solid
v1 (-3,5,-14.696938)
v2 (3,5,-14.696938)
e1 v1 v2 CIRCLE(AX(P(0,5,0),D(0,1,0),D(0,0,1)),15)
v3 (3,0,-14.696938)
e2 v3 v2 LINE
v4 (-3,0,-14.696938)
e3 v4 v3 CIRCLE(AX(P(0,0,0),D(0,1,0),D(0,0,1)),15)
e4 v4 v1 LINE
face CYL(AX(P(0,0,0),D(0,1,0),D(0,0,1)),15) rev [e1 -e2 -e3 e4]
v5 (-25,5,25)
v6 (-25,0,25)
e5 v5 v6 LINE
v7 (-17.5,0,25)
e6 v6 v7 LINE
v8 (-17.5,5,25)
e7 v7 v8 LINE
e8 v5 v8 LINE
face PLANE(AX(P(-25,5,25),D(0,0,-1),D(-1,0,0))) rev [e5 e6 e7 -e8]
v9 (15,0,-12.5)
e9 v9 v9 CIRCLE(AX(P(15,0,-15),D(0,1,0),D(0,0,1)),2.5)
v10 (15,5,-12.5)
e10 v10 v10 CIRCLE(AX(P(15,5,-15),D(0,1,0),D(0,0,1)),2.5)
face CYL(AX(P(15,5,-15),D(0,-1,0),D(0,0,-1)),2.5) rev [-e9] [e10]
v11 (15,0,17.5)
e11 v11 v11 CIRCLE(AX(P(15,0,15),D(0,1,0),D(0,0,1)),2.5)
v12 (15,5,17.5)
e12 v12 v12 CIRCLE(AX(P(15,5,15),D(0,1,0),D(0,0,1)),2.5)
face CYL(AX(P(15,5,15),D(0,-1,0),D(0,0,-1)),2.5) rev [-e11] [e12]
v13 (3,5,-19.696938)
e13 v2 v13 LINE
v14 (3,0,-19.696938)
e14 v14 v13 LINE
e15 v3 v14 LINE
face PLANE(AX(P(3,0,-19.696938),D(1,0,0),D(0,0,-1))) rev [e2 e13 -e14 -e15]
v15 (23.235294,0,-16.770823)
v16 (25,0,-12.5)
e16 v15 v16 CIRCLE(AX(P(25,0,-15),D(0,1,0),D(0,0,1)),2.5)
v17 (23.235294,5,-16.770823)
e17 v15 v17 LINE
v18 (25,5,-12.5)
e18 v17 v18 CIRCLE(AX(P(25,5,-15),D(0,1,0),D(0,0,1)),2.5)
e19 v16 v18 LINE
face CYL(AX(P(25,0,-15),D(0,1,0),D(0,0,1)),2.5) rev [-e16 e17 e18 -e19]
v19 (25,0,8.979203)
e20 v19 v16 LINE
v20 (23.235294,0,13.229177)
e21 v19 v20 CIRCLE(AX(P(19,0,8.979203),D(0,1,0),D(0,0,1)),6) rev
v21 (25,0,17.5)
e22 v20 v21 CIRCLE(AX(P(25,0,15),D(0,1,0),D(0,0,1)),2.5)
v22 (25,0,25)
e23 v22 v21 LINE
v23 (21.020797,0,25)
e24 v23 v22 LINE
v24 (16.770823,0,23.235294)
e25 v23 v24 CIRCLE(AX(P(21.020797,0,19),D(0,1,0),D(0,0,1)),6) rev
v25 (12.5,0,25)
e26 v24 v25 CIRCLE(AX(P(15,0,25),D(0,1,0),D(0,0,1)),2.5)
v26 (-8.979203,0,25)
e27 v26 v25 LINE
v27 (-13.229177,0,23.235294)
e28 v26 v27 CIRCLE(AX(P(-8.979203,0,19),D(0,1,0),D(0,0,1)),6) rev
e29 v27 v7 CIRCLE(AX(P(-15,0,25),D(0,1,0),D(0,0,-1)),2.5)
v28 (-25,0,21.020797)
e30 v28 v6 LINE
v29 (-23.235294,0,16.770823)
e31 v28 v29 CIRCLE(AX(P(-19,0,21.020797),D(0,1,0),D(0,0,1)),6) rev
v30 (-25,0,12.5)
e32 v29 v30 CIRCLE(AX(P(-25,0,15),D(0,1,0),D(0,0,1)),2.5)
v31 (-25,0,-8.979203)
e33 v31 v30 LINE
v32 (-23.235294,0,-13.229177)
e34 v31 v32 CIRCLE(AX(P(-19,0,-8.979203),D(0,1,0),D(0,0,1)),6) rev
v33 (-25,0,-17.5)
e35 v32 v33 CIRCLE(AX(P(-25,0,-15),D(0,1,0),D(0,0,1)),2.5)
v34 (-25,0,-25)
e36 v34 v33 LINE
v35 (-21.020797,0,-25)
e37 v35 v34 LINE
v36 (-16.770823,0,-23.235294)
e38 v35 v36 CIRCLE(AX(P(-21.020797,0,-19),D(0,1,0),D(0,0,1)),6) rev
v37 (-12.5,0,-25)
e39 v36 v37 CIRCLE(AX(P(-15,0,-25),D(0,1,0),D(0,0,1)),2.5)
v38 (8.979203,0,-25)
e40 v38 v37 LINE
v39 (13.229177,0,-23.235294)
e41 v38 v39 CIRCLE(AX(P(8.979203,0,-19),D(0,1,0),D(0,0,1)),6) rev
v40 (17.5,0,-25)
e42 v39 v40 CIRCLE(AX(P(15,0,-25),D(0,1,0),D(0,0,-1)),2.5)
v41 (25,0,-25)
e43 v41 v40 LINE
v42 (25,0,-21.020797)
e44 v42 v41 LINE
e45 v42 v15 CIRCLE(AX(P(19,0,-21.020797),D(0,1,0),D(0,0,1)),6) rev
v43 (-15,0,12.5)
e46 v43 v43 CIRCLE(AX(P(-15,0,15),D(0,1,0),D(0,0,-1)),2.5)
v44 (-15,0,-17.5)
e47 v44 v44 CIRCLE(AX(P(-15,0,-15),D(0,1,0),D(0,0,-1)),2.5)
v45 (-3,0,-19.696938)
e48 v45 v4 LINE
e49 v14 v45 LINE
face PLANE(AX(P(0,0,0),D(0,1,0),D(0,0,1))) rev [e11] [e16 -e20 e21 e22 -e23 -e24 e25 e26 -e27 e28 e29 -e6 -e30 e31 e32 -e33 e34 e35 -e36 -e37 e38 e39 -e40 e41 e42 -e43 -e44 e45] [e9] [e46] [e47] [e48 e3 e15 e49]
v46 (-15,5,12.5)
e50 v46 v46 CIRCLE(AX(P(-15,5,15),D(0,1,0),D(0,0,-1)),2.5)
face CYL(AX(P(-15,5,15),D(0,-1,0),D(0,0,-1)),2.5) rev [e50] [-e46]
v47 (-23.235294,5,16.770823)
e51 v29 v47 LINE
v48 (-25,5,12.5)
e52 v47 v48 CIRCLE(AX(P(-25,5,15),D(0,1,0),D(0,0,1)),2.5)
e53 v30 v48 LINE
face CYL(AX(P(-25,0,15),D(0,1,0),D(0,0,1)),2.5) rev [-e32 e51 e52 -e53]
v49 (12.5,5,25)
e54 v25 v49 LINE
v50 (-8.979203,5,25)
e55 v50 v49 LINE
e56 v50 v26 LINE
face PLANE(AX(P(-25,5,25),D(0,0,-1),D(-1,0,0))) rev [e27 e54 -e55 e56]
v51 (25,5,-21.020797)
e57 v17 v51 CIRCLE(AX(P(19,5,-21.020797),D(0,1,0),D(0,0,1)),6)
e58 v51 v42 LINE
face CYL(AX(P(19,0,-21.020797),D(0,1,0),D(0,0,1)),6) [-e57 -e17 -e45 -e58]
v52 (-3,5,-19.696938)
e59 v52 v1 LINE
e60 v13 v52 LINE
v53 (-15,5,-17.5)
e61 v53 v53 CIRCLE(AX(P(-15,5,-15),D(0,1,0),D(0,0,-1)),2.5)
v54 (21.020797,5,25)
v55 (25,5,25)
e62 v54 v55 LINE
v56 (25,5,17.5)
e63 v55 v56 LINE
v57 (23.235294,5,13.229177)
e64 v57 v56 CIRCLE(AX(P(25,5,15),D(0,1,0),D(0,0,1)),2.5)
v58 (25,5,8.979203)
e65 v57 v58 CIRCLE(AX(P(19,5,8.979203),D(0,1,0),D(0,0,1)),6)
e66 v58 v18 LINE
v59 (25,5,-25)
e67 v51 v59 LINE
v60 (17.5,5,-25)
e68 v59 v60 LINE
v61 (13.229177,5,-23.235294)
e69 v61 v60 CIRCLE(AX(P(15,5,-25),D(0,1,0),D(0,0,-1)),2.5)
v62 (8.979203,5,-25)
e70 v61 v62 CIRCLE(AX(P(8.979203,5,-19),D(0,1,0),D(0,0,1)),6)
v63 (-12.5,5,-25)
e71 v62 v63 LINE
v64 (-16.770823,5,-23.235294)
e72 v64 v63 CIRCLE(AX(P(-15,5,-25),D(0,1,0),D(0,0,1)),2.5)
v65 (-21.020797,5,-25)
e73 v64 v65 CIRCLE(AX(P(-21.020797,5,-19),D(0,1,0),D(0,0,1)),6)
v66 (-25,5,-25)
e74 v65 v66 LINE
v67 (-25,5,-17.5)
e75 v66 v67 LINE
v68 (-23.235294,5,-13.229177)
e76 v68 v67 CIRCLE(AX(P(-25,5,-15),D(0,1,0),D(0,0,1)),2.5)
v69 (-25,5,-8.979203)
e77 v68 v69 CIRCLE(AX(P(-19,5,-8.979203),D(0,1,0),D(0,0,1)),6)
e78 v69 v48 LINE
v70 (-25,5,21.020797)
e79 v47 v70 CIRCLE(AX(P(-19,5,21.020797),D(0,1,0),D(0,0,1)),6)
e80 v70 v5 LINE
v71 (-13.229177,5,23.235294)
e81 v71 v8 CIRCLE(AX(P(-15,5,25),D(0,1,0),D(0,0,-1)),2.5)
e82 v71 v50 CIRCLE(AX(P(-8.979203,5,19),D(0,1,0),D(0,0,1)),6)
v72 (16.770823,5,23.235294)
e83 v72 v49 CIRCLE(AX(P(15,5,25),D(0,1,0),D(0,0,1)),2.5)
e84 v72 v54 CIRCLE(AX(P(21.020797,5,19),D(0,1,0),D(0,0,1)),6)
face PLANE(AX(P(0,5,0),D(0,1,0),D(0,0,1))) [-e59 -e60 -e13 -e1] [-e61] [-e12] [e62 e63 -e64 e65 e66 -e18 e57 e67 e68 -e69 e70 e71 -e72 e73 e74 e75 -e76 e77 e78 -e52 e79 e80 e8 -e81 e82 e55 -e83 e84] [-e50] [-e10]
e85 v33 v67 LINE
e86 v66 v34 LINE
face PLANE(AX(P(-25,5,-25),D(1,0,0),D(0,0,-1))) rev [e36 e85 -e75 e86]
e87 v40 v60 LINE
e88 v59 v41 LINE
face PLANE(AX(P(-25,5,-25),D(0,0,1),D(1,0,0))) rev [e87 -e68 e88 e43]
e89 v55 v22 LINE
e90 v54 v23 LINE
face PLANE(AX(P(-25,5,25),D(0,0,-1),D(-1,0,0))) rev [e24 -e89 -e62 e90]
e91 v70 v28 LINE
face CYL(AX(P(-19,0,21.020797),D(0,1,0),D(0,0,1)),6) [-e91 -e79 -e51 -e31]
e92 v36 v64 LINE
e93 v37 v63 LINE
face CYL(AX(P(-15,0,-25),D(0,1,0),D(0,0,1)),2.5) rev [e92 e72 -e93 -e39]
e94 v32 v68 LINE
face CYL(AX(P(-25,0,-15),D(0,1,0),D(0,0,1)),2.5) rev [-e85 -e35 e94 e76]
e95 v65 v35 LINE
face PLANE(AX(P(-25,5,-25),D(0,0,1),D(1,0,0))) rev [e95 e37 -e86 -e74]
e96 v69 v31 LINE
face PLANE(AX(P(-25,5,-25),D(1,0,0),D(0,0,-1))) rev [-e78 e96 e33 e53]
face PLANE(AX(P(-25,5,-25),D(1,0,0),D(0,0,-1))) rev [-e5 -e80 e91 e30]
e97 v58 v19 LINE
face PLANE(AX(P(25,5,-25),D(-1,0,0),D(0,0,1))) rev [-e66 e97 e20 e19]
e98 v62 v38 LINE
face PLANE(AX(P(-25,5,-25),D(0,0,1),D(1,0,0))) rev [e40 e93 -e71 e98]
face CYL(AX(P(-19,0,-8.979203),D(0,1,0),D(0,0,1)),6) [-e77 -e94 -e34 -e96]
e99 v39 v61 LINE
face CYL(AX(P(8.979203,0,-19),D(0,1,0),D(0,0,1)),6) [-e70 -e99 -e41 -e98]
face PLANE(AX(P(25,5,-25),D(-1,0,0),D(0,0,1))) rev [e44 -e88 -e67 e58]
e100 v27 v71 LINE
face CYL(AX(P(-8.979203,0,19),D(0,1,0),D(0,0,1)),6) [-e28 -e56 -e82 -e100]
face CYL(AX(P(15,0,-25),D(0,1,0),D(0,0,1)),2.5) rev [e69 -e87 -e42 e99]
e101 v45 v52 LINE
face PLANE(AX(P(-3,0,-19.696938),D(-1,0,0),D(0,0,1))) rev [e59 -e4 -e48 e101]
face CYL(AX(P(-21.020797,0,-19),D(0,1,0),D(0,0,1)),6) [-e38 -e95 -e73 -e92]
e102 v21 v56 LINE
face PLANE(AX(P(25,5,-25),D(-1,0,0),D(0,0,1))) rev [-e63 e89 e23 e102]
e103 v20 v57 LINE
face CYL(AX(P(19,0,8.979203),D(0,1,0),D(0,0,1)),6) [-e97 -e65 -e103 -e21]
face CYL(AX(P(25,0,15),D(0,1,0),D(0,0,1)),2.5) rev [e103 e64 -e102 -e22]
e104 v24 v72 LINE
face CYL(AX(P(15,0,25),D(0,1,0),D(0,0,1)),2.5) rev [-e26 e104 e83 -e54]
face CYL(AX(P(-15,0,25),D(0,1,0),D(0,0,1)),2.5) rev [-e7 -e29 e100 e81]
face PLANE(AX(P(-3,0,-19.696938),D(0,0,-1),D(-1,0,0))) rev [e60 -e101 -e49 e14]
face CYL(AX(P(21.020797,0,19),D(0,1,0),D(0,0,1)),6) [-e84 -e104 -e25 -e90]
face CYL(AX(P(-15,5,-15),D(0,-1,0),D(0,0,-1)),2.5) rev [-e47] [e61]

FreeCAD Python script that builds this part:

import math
import FreeCAD as App
import Part
import Sketcher


def edges_at(feature, points):
    """Names of the edges that pass closest to the given points."""
    edges = feature.Shape.Edges
    near = lambda p: min(range(len(edges)), key=lambda i: edges[i].distToShape(Part.Vertex(*p))[0])
    return sorted({f"Edge{near(p) + 1}" for p in points})


def add_polygon(sketch, points):
    """Adds a closed chain of lines whose ends are joined by coincident constraints."""
    first, n = sketch.GeometryCount, len(points)
    for a, b in zip(points, points[1:] + points[:1]):
        sketch.addGeometry(Part.LineSegment(App.Vector(*a, 0), App.Vector(*b, 0)), False)
    for i in range(n):
        sketch.addConstraint(Sketcher.Constraint("Coincident", first + i, 2, first + (i + 1) % n, 1))

doc = App.newDocument("Part")
body = doc.addObject("PartDesign::Body", "Body")

# Sketch on XZ plane
sketch1 = body.newObject("Sketcher::SketchObject", "Sketch")
sketch1.AttachmentSupport = (doc.getObject("XZ_Plane"), [""])
sketch1.MapMode = "FlatFace"
add_polygon(sketch1, [(-25, -25), (-25, 25), (25, 25), (25, -25)])  # lines 0-3
sketch1.addGeometry(Part.Circle(App.Vector(-15, 15, 0), App.Vector(0, 0, 1), 2.5), False)  # 4
sketch1.addGeometry(Part.Circle(App.Vector(15, 15, 0), App.Vector(0, 0, 1), 2.5), False)  # 5
sketch1.addGeometry(Part.Circle(App.Vector(-15, -15, 0), App.Vector(0, 0, 1), 2.5), False)  # 6
sketch1.addGeometry(Part.Circle(App.Vector(15, -15, 0), App.Vector(0, 0, 1), 2.5), False)  # 7
sketch1.addConstraint([
    Sketcher.Constraint("Vertical", 0),
    Sketcher.Constraint("Horizontal", 1),
    Sketcher.Constraint("Vertical", 2),
    Sketcher.Constraint("Horizontal", 3),
    Sketcher.Constraint("Equal", 4, 5),
    Sketcher.Constraint("Equal", 5, 6),
    Sketcher.Constraint("Equal", 6, 7),
    Sketcher.Constraint("Symmetric", 5, 3, 6, 3, -1, 1),
    Sketcher.Constraint("Symmetric", 4, 3, 7, 3, -1, 1),
    Sketcher.Constraint("Symmetric", 0, 2, 2, 2, -1, 1),
    Sketcher.Constraint("Symmetric", 4, 3, 5, 3, -2),
    Sketcher.Constraint("Equal", 3, 0),
    Sketcher.Constraint("Diameter", 4, 5.0),
    Sketcher.Constraint("DistanceX", 1, 1, 1, 2, 50.0),
    Sketcher.Constraint("DistanceX", 4, 3, -1, 1, 15.0),
    Sketcher.Constraint("DistanceY", -1, 1, 4, 3, 15.0),
])
pad1 = body.newObject("PartDesign::Pad", "Pad")
pad1.Profile = sketch1
pad1.Length = 5
pad1.Reversed = True

# Sketch on XZ plane
sketch2 = body.newObject("Sketcher::SketchObject", "Sketch001")
sketch2.AttachmentSupport = (doc.getObject("XZ_Plane"), [""])
sketch2.MapMode = "FlatFace"
sketch2.AttachmentOffset = App.Placement(App.Vector(0, 0, -5), App.Rotation())
sketch2.addGeometry([
    Part.Circle(App.Vector(25, -15, 0), App.Vector(0, 0, 1), 2.5),  # 0
    Part.Circle(App.Vector(25, 15, 0), App.Vector(0, 0, 1), 2.5),  # 1
    Part.Circle(App.Vector(-25, -15, 0), App.Vector(0, 0, 1), 2.5),  # 2
    Part.Circle(App.Vector(-25, 15, 0), App.Vector(0, 0, 1), 2.5),  # 3
    Part.Circle(App.Vector(-15, -25, 0), App.Vector(0, 0, 1), 2.5),  # 4
    Part.Circle(App.Vector(15, -25, 0), App.Vector(0, 0, 1), 2.5),  # 5
    Part.Circle(App.Vector(15, 25, 0), App.Vector(0, 0, 1), 2.5),  # 6
    Part.Circle(App.Vector(-15, 25, 0), App.Vector(0, 0, 1), 2.5),  # 7
], False)
sketch2.addConstraint([
    Sketcher.Constraint("Equal", 0, 1),
    Sketcher.Constraint("Equal", 1, 2),
    Sketcher.Constraint("Equal", 2, 3),
    Sketcher.Constraint("Equal", 3, 4),
    Sketcher.Constraint("Equal", 4, 5),
    Sketcher.Constraint("Equal", 5, 6),
    Sketcher.Constraint("Equal", 6, 7),
    Sketcher.Constraint("Symmetric", 1, 3, 2, 3, -1, 1),
    Sketcher.Constraint("Symmetric", 0, 3, 3, 3, -1, 1),
    Sketcher.Constraint("Symmetric", 4, 3, 6, 3, -1, 1),
    Sketcher.Constraint("Symmetric", 5, 3, 7, 3, -1, 1),
    Sketcher.Constraint("Symmetric", 0, 3, 2, 3, -2),
    Sketcher.Constraint("Symmetric", 4, 3, 5, 3, -2),
    Sketcher.Constraint("Diameter", 0, 5.0),
    Sketcher.Constraint("DistanceX", -1, 1, 0, 3, 25.0),
    Sketcher.Constraint("DistanceY", 0, 3, -1, 1, 15.0),
    Sketcher.Constraint("DistanceX", 4, 3, -1, 1, 15.0),
    Sketcher.Constraint("DistanceY", 4, 3, -1, 1, 25.0),
])
pocket1 = body.newObject("PartDesign::Pocket", "Pocket")
pocket1.Profile = sketch2
pocket1.Length = 5
pocket1.Reversed = True

# Sketch on XZ plane
sketch3 = body.newObject("Sketcher::SketchObject", "Sketch002")
sketch3.AttachmentSupport = (doc.getObject("XZ_Plane"), [""])
sketch3.MapMode = "FlatFace"
sketch3.AttachmentOffset = App.Placement(App.Vector(0, 0, -5), App.Rotation())
sketch3.addGeometry([
    Part.LineSegment(App.Vector(3, -19.696938, 0), App.Vector(-3, -19.696938, 0)),
    Part.LineSegment(App.Vector(-3, -19.696938, 0), App.Vector(-3, -14.696938, 0)),
    Part.ArcOfCircle(Part.Circle(App.Vector(0, 0, 0), App.Vector(0, 0, 1), 15), math.radians(-78.463041), math.radians(258.463041)),
    Part.LineSegment(App.Vector(3, -14.696938, 0), App.Vector(3, -19.696938, 0)),
], False)
sketch3.addConstraint([
    Sketcher.Constraint("Coincident", 0, 2, 1, 1),
    Sketcher.Constraint("Coincident", 1, 2, 2, 2),
    Sketcher.Constraint("Coincident", 2, 1, 3, 1),
    Sketcher.Constraint("Coincident", 3, 2, 0, 1),
    Sketcher.Constraint("Horizontal", 0),
    Sketcher.Constraint("Vertical", 1),
    Sketcher.Constraint("Vertical", 3),
    Sketcher.Constraint("Coincident", 2, 3, -1, 1),
    Sketcher.Constraint("Horizontal", 1, 2, 2, 1),
    Sketcher.Constraint("Radius", 2, 15.0),
    Sketcher.Constraint("DistanceX", 0, 2, 0, 1, 6.0),
    Sketcher.Constraint("DistanceY", 1, 1, 1, 2, 5.0),
])
pocket2 = body.newObject("PartDesign::Pocket", "Pocket001")
pocket2.Profile = sketch3
pocket2.Type = "ThroughAll"
pocket2.Reversed = True
doc.recompute()

fillet = body.newObject("PartDesign::Fillet", "Fillet")
fillet.Base = (pocket2, edges_at(pocket2, [
    (-12.5, 2.5, 25),
    (17.5, 2.5, 25),
    (-25, 2.5, -12.5),
    (-25, 2.5, 17.5),
    (12.5, 2.5, -25),
    (-17.5, 2.5, -25),
    (25, 2.5, -17.5),
    (25, 2.5, 12.5),
]))
fillet.Radius = 6

doc.recompute()
